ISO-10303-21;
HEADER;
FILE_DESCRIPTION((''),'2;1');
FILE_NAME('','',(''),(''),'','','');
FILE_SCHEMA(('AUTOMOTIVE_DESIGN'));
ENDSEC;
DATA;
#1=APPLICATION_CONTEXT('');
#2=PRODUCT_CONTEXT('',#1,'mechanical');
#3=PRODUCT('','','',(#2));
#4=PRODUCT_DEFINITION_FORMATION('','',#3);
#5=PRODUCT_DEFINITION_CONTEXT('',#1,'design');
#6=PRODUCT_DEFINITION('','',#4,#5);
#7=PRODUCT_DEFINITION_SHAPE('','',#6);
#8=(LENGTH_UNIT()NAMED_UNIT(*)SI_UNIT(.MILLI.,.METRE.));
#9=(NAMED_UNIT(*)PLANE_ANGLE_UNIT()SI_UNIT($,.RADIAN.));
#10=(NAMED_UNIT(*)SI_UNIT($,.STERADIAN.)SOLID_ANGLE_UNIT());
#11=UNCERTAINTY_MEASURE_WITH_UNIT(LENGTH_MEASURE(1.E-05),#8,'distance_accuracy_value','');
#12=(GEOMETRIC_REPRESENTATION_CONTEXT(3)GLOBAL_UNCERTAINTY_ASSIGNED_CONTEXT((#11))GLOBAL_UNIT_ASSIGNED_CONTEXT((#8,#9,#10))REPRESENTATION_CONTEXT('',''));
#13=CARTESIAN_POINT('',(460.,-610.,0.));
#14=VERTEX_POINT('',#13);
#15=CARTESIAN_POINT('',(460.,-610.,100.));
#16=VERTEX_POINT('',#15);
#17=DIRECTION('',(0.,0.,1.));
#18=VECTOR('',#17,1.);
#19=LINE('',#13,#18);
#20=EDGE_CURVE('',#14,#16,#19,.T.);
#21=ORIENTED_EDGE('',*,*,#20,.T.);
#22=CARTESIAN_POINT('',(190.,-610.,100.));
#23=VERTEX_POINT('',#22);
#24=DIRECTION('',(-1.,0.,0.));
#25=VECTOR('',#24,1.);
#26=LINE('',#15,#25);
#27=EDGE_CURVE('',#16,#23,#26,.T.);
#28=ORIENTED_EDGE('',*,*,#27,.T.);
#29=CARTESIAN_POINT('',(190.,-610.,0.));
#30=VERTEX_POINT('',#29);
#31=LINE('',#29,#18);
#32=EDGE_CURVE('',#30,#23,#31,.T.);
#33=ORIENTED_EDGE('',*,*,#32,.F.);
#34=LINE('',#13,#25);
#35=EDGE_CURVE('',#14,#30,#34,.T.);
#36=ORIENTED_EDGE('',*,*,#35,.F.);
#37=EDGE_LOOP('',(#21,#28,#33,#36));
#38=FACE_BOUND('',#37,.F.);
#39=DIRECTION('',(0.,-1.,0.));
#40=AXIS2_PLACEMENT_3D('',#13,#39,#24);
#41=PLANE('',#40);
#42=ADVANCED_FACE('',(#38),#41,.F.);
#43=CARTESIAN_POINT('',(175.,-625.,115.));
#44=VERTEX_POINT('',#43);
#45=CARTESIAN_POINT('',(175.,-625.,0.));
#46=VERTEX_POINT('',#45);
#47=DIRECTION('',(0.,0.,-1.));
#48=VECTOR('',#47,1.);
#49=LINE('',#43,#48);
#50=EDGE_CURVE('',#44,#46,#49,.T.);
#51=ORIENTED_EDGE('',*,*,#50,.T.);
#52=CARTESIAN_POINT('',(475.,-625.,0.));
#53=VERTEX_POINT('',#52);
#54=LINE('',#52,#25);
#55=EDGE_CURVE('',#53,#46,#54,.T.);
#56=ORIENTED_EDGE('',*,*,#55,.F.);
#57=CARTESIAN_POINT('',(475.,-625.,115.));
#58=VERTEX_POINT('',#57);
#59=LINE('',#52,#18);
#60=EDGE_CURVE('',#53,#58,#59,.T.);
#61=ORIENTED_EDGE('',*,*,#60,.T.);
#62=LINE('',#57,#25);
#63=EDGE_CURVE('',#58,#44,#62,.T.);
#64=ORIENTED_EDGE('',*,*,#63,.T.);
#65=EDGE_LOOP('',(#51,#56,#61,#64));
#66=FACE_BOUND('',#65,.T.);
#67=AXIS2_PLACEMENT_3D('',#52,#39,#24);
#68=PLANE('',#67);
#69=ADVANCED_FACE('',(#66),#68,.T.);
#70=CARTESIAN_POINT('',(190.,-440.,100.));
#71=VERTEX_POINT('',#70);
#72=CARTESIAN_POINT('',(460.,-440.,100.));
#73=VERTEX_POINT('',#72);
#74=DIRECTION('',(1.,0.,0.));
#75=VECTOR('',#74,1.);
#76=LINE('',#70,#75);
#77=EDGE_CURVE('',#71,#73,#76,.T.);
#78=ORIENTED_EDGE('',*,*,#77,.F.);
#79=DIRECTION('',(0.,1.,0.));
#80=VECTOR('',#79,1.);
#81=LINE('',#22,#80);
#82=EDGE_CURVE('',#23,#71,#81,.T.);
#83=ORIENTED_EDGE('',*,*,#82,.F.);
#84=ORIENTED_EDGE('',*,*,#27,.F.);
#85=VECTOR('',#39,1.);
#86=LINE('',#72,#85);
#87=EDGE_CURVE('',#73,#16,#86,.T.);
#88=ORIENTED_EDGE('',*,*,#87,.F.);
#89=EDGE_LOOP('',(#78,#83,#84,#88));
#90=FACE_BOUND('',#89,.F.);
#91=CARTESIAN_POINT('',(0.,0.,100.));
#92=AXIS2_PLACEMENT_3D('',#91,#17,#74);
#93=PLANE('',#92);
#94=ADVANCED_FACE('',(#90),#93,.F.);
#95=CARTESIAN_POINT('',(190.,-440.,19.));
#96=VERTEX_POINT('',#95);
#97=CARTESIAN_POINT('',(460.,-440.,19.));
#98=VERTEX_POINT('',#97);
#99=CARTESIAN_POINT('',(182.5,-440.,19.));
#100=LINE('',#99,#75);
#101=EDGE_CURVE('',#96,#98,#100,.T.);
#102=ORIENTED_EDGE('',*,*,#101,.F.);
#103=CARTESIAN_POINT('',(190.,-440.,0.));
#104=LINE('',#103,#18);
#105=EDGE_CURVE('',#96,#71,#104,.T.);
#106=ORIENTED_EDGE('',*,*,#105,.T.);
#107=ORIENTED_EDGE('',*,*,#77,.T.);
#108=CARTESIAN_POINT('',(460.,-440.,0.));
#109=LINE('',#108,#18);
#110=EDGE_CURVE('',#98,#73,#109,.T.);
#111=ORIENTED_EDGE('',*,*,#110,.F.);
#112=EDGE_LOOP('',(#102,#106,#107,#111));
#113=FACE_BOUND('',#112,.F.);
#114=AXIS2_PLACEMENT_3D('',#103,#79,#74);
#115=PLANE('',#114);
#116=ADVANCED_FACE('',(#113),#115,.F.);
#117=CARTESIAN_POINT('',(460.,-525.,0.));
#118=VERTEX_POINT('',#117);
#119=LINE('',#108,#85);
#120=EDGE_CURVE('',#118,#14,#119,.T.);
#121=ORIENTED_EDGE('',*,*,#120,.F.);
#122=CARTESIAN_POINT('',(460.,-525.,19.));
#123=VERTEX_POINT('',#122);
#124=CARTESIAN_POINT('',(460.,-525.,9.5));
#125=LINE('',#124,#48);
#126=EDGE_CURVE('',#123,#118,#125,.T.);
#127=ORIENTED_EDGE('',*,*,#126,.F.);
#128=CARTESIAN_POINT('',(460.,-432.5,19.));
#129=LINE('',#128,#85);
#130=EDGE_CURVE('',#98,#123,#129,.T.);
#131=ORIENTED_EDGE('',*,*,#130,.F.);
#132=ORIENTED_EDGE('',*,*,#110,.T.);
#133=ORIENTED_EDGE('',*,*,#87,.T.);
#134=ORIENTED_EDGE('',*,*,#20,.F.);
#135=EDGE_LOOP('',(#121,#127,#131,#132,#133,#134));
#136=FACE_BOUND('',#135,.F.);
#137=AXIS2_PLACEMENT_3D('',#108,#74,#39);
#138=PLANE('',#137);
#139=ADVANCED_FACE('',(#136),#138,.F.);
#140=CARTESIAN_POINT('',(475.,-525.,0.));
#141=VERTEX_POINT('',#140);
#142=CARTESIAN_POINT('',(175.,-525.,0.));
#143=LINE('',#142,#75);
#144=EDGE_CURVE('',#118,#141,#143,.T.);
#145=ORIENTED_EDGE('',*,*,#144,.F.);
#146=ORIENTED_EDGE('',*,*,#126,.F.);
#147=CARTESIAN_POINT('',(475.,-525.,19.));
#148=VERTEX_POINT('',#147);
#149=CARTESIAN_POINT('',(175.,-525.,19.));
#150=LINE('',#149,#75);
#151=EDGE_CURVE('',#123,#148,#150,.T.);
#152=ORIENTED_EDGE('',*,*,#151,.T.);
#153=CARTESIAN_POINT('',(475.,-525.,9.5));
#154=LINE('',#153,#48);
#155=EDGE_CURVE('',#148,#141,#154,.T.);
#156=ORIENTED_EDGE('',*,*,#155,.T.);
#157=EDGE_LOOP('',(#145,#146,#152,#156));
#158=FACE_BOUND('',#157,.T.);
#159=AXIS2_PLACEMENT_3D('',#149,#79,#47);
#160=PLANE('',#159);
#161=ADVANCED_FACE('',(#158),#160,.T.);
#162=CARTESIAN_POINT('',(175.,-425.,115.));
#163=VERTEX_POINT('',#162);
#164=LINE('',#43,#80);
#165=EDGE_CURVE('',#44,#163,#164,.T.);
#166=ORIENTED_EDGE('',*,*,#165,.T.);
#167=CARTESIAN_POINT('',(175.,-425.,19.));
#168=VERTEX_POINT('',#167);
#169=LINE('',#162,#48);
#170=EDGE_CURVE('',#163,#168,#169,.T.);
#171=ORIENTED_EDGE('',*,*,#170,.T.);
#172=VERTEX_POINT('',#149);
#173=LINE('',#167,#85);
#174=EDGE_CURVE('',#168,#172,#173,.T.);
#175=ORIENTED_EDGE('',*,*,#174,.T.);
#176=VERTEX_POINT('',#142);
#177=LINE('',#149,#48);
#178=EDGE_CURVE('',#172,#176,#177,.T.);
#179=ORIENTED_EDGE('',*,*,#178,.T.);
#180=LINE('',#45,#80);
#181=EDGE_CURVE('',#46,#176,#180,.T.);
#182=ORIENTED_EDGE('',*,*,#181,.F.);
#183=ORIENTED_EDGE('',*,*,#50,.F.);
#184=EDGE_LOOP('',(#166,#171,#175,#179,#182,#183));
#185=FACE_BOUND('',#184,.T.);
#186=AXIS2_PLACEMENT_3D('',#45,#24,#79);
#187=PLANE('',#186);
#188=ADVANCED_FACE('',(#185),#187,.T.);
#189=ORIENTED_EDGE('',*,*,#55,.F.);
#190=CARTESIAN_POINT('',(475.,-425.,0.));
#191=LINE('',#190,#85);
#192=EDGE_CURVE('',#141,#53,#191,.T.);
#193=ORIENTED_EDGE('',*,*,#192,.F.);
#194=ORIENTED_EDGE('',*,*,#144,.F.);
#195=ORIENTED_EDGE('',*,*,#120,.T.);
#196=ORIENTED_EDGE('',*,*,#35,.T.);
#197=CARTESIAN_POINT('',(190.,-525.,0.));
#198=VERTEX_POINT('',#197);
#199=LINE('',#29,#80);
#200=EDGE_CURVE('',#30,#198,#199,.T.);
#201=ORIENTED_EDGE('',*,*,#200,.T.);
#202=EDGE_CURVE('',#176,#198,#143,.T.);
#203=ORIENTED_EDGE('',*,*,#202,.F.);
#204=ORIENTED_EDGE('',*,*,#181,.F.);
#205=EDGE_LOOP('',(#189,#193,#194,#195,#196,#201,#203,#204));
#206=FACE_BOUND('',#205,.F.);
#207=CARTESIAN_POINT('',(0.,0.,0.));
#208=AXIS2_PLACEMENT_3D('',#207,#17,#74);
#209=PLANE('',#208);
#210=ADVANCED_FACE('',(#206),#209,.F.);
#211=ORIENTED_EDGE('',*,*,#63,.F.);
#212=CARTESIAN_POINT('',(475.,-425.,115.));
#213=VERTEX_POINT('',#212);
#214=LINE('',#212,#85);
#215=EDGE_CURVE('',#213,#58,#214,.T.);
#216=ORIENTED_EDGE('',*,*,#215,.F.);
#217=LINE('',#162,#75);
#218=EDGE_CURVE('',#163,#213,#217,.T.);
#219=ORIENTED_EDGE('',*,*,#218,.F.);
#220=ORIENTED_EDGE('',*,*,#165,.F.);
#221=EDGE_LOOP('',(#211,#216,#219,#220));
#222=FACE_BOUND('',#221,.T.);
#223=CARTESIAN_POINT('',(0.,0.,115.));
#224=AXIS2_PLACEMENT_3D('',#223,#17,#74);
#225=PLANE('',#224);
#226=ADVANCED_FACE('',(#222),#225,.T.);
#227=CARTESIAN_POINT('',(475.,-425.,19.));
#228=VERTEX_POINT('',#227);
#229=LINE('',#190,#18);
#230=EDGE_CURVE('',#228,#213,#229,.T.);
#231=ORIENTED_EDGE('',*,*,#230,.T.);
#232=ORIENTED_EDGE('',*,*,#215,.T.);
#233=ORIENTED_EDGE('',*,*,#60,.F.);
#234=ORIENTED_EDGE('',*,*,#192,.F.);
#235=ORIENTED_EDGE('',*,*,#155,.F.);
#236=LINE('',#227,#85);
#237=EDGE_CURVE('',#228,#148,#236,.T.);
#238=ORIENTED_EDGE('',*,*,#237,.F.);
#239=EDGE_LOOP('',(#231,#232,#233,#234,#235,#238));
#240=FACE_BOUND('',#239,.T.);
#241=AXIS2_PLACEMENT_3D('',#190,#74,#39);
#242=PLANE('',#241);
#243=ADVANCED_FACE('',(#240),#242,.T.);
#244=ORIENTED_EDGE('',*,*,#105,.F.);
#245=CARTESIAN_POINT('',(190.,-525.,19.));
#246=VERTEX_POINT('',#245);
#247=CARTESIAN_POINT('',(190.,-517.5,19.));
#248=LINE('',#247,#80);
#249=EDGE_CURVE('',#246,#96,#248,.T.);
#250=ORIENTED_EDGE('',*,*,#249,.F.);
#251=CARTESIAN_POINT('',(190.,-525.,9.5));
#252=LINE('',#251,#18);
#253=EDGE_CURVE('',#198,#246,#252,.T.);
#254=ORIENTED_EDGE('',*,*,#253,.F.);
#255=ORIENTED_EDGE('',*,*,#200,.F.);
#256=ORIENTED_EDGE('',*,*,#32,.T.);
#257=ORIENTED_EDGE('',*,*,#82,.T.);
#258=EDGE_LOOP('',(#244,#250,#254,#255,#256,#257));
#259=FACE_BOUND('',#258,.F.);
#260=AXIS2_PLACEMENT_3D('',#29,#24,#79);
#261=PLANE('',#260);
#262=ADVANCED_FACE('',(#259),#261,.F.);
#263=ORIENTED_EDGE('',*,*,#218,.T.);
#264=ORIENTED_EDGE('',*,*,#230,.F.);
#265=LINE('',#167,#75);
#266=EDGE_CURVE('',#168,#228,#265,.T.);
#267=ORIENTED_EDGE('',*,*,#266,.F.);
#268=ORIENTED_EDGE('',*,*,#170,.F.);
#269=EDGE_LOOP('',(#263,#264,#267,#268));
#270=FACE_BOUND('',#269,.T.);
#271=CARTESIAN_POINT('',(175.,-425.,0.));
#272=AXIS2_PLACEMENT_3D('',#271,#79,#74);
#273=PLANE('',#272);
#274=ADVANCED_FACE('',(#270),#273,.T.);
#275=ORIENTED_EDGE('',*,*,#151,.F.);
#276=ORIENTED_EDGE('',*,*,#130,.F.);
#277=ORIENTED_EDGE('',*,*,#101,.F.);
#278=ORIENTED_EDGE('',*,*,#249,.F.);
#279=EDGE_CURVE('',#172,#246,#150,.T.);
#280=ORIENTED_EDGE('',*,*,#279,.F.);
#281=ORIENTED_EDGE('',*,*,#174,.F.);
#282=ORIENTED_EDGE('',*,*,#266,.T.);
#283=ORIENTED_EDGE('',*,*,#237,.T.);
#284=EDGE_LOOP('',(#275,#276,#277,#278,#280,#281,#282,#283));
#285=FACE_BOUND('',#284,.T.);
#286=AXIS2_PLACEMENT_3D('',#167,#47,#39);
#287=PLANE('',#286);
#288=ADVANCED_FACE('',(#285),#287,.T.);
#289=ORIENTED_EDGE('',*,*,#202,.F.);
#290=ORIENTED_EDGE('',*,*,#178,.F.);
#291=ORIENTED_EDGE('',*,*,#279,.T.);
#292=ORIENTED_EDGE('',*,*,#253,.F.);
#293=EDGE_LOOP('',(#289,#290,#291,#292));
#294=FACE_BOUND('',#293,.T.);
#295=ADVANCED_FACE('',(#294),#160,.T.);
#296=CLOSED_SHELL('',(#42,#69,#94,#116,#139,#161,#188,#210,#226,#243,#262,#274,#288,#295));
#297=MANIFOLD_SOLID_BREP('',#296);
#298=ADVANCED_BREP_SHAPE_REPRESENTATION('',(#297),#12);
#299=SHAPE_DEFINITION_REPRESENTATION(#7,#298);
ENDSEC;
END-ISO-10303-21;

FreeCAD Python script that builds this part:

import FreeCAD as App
import Part
import Sketcher
from FreeCAD import Vector

doc = App.newDocument("Part")
body = doc.addObject("PartDesign::Body", "Body")

# Sketch on XY plane
sketch1 = body.newObject("Sketcher::SketchObject", "Sketch")
sketch1.AttachmentSupport = (doc.getObject("XY_Plane"), [""])
sketch1.MapMode = "FlatFace"
sketch1.addGeometry([
    Part.LineSegment(Vector(175, -625, 0), Vector(475, -625, 0)),  # 0
    Part.LineSegment(Vector(475, -625, 0), Vector(475, -425, 0)),  # 1
    Part.LineSegment(Vector(475, -425, 0), Vector(175, -425, 0)),  # 2
    Part.LineSegment(Vector(175, -425, 0), Vector(175, -625, 0)),  # 3
    Part.LineSegment(Vector(460, -440, 0), Vector(460, -610, 0)),  # 4
    Part.LineSegment(Vector(460, -610, 0), Vector(190, -610, 0)),  # 5
    Part.LineSegment(Vector(190, -610, 0), Vector(190, -440, 0)),  # 6
    Part.LineSegment(Vector(190, -440, 0), Vector(460, -440, 0)),  # 7
], False)
sketch1.addConstraint([
    Sketcher.Constraint("Coincident", 0, 2, 1, 1),
    Sketcher.Constraint("Coincident", 1, 2, 2, 1),
    Sketcher.Constraint("Coincident", 2, 2, 3, 1),
    Sketcher.Constraint("Coincident", 3, 2, 0, 1),
    Sketcher.Constraint("Coincident", 4, 2, 5, 1),
    Sketcher.Constraint("Coincident", 5, 2, 6, 1),
    Sketcher.Constraint("Coincident", 6, 2, 7, 1),
    Sketcher.Constraint("Coincident", 7, 2, 4, 1),
    Sketcher.Constraint("Horizontal", 0),
    Sketcher.Constraint("Vertical", 1),
    Sketcher.Constraint("Horizontal", 2),
    Sketcher.Constraint("Vertical", 3),
    Sketcher.Constraint("Vertical", 4),
    Sketcher.Constraint("Horizontal", 5),
    Sketcher.Constraint("Vertical", 6),
    Sketcher.Constraint("Horizontal", 7),
    Sketcher.Constraint("DistanceX", 4, 2, 0, 2, 15.0),
    Sketcher.Constraint("DistanceY", 0, 2, 4, 2, 15.0),
    Sketcher.Constraint("DistanceX", 3, 2, 5, 2, 15.0),
    Sketcher.Constraint("DistanceY", 6, 2, 2, 2, 15.0),
    Sketcher.Constraint("DistanceX", 0, 1, 0, 2, 300.0),
    Sketcher.Constraint("DistanceY", 1, 1, 1, 2, 200.0),
    Sketcher.Constraint("DistanceX", -1, 1, 0, 2, 475.0),
    Sketcher.Constraint("DistanceY", 0, 2, -1, 1, 625.0),
])
pad1 = body.newObject("PartDesign::Pad", "Pad")
pad1.Profile = sketch1
pad1.Length = 100

# Sketch on XY plane
sketch2 = body.newObject("Sketcher::SketchObject", "Sketch001")
sketch2.AttachmentSupport = (doc.getObject("XY_Plane"), [""])
sketch2.MapMode = "FlatFace"
sketch2.AttachmentOffset = App.Placement(Vector(0, 0, 100), App.Rotation())
sketch2.addGeometry([
    Part.LineSegment(Vector(475, -425, 0), Vector(175, -425, 0)),
    Part.LineSegment(Vector(175, -425, 0), Vector(175, -625, 0)),
    Part.LineSegment(Vector(175, -625, 0), Vector(475, -625, 0)),
    Part.LineSegment(Vector(475, -625, 0), Vector(475, -425, 0)),
], False)
sketch2.addConstraint([
    Sketcher.Constraint("Coincident", 0, 2, 1, 1),
    Sketcher.Constraint("Coincident", 1, 2, 2, 1),
    Sketcher.Constraint("Coincident", 2, 2, 3, 1),
    Sketcher.Constraint("Coincident", 3, 2, 0, 1),
    Sketcher.Constraint("Horizontal", 0),
    Sketcher.Constraint("Vertical", 1),
    Sketcher.Constraint("Horizontal", 2),
    Sketcher.Constraint("Vertical", 3),
    Sketcher.Constraint("DistanceX", 0, 2, 0, 1, 300.0),
    Sketcher.Constraint("DistanceY", 1, 2, 1, 1, 200.0),
    Sketcher.Constraint("DistanceX", -1, 1, 0, 2, 175.0),
    Sketcher.Constraint("DistanceY", 0, 2, -1, 1, 425.0),
])
pad2 = body.newObject("PartDesign::Pad", "Pad001")
pad2.Profile = sketch2
pad2.Length = 15

# Sketch on YZ plane
sketch3 = body.newObject("Sketcher::SketchObject", "Sketch002")
sketch3.AttachmentSupport = (doc.getObject("YZ_Plane"), [""])
sketch3.MapMode = "FlatFace"
sketch3.AttachmentOffset = App.Placement(Vector(0, 0, 175), App.Rotation())
sketch3.addGeometry([
    Part.LineSegment(Vector(-425, 19, 0), Vector(-425, 0, 0)),
    Part.LineSegment(Vector(-425, 0, 0), Vector(-525, 0, 0)),
    Part.LineSegment(Vector(-525, 0, 0), Vector(-525, 19, 0)),
    Part.LineSegment(Vector(-525, 19, 0), Vector(-425, 19, 0)),
], False)
sketch3.addConstraint([
    Sketcher.Constraint("Coincident", 0, 2, 1, 1),
    Sketcher.Constraint("Coincident", 1, 2, 2, 1),
    Sketcher.Constraint("Coincident", 2, 2, 3, 1),
    Sketcher.Constraint("Coincident", 3, 2, 0, 1),
    Sketcher.Constraint("Vertical", 0),
    Sketcher.Constraint("Horizontal", 1),
    Sketcher.Constraint("Vertical", 2),
    Sketcher.Constraint("Horizontal", 3),
    Sketcher.Constraint("PointOnObject", 0, 2, -1),
    Sketcher.Constraint("DistanceX", 1, 2, 1, 1, 100.0),
    Sketcher.Constraint("DistanceY", 0, 2, 0, 1, 19.0),
    Sketcher.Constraint("DistanceX", 0, 2, -1, 1, 425.0),
])
pocket1 = body.newObject("PartDesign::Pocket", "Pocket")
pocket1.Profile = sketch3
pocket1.Length = 300
pocket1.Reversed = True

doc.recompute()
